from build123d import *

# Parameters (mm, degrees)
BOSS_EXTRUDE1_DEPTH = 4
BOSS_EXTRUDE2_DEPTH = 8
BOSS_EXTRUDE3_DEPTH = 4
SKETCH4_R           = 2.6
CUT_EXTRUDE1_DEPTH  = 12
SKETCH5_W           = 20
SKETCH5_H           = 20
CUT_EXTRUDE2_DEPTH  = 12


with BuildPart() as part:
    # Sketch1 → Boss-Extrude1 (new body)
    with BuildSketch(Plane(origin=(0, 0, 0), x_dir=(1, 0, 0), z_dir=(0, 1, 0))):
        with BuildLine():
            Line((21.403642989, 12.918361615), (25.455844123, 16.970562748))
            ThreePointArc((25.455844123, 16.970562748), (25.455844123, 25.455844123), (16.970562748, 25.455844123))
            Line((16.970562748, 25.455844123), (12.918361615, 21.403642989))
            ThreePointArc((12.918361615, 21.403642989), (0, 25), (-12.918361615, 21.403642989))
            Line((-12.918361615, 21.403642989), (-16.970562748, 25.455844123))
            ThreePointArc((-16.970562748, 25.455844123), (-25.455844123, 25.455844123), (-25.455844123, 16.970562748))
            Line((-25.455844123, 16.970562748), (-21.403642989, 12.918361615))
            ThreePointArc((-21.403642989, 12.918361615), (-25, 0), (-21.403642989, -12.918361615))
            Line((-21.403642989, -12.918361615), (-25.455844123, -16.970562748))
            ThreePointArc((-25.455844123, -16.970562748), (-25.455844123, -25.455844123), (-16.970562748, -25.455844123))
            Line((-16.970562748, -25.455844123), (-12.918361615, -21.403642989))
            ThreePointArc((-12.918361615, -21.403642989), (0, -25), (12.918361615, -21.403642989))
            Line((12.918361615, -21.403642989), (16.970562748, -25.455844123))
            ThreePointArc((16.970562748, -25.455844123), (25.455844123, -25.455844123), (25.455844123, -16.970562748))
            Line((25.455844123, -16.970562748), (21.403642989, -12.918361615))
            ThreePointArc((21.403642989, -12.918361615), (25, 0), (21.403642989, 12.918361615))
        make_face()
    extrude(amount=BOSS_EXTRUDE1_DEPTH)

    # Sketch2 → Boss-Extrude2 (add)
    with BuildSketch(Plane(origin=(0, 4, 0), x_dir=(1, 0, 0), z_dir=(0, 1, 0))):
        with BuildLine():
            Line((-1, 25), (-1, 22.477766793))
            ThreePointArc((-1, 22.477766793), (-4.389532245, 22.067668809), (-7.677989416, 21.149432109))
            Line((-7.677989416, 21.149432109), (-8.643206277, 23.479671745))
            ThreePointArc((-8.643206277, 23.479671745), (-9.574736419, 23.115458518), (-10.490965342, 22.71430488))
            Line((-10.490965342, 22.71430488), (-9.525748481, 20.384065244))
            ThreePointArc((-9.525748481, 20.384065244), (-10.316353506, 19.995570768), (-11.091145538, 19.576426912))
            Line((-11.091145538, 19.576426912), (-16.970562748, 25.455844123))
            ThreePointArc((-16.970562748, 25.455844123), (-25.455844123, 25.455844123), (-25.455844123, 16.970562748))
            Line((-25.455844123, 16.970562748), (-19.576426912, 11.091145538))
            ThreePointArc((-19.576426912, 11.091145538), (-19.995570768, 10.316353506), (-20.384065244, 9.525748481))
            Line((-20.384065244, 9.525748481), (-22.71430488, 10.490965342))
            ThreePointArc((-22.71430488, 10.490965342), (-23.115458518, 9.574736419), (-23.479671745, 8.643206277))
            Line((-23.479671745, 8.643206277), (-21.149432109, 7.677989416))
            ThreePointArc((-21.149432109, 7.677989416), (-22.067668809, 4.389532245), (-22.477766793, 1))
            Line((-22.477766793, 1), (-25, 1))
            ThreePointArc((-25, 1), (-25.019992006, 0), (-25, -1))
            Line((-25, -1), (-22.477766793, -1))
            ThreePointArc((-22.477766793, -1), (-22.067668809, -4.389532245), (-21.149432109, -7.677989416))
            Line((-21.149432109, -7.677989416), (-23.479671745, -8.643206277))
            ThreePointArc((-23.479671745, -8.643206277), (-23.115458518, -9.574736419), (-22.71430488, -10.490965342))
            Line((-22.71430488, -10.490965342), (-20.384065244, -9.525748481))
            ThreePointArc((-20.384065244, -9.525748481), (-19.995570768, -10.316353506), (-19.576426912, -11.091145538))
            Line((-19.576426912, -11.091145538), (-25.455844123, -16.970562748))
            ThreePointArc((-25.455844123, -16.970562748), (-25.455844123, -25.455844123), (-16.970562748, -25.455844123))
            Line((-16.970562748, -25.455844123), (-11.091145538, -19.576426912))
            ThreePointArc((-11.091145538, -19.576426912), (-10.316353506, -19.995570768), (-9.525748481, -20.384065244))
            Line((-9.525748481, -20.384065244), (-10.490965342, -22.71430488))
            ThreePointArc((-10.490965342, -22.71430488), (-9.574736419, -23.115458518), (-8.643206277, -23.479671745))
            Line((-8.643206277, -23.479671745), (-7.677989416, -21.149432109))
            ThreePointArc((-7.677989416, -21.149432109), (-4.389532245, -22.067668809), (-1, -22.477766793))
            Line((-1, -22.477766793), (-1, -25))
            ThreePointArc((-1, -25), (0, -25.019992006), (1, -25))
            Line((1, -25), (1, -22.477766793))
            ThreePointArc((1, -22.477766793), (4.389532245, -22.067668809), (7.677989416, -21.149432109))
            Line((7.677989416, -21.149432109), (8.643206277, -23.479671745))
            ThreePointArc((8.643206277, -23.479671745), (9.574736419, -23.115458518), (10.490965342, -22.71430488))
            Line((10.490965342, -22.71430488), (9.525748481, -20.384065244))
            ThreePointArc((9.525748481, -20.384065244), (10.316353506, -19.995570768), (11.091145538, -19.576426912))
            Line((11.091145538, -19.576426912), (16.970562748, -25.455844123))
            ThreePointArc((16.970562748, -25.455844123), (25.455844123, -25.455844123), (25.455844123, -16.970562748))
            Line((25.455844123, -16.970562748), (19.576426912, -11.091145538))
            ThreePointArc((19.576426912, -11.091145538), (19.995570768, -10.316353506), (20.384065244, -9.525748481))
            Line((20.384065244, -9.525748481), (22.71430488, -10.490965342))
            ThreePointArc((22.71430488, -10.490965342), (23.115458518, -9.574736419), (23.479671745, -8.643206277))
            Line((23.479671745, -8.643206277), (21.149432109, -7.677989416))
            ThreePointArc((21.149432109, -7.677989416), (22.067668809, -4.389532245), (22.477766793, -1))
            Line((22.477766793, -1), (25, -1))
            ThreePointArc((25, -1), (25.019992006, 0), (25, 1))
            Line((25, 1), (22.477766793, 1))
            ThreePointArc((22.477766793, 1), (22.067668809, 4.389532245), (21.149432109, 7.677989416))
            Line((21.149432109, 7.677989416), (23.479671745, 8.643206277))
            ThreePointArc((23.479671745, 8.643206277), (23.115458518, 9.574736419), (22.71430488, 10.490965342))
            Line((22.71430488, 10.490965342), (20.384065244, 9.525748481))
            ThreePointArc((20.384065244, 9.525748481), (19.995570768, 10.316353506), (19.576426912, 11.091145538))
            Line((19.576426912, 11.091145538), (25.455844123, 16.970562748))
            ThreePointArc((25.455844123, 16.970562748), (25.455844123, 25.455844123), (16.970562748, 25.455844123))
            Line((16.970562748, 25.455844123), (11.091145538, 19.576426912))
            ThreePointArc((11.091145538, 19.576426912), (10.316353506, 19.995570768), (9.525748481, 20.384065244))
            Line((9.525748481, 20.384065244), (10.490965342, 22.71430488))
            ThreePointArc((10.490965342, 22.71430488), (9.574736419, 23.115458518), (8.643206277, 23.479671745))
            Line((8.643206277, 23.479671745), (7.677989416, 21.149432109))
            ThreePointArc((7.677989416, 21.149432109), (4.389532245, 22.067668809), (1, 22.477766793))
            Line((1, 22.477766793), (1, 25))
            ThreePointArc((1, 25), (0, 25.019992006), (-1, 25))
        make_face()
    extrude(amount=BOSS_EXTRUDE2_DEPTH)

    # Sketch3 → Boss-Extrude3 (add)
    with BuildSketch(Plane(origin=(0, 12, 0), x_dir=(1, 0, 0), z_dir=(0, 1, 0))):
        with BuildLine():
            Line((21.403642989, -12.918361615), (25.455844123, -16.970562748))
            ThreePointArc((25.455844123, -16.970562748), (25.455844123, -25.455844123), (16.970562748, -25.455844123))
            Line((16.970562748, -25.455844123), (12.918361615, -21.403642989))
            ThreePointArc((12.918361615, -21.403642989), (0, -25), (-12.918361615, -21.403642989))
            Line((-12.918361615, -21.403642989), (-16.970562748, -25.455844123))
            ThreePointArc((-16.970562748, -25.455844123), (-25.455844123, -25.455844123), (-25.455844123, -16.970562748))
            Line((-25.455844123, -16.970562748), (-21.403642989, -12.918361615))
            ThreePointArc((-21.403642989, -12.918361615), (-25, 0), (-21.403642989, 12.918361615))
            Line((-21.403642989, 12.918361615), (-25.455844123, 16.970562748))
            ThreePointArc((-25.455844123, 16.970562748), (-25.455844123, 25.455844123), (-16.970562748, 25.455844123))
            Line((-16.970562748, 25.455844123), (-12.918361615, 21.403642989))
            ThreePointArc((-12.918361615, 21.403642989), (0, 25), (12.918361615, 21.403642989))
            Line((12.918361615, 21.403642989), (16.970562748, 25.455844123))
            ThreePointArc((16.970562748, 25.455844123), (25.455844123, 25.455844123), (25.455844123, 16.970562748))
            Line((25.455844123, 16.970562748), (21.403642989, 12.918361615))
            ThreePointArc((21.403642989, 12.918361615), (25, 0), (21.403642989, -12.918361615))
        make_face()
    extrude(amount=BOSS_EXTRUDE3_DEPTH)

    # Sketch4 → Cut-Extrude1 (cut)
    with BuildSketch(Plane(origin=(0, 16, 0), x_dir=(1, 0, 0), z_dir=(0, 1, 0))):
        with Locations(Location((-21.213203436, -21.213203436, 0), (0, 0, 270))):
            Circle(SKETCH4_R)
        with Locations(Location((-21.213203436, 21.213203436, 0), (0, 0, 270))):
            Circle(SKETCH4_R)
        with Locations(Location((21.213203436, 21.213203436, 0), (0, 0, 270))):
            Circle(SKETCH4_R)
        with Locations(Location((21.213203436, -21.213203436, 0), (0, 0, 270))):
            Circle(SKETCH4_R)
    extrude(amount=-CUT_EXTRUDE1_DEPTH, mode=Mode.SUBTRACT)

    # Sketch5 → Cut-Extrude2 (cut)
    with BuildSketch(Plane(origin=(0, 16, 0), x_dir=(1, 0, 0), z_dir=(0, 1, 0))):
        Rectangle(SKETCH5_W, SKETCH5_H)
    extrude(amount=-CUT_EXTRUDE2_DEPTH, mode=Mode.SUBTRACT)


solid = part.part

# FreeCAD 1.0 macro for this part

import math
import FreeCAD as App
import Part
import Sketcher
Q = App.Units.Quantity


def add_polygon(sketch, points):
    """Adds a closed chain of lines whose ends are joined by coincident constraints."""
    first, n = sketch.GeometryCount, len(points)
    for a, b in zip(points, points[1:] + points[:1]):
        sketch.addGeometry(Part.LineSegment(App.Vector(*a, 0), App.Vector(*b, 0)), False)
    for i in range(n):
        sketch.addConstraint(Sketcher.Constraint("Coincident", first + i, 2, first + (i + 1) % n, 1))

doc = App.newDocument("Part")
body = doc.addObject("PartDesign::Body", "Body")

# Sketch on XZ plane
sketch1 = body.newObject("Sketcher::SketchObject", "Sketch")
sketch1.AttachmentSupport = (doc.getObject("XZ_Plane"), [""])
sketch1.MapMode = "FlatFace"
sketch1.addGeometry([
    Part.LineSegment(App.Vector(21, -13, 0), App.Vector(25, -17, 0)),  # 0
    Part.ArcOfCircle(Part.Circle(App.Vector(21, -21, 0), App.Vector(0, 0, 1), 6), math.radians(-135), math.radians(45)),  # 1
    Part.LineSegment(App.Vector(17, -25, 0), App.Vector(13, -21, 0)),  # 2
    Part.ArcOfCircle(Part.Circle(App.Vector(0, 0, 0), App.Vector(0, 0, 1), 25), math.radians(-121), math.radians(-59)),  # 3
    Part.LineSegment(App.Vector(-13, -21, 0), App.Vector(-17, -25, 0)),  # 4
    Part.ArcOfCircle(Part.Circle(App.Vector(-21, -21, 0), App.Vector(0, 0, 1), 6), math.radians(135), math.radians(315)),  # 5
    Part.LineSegment(App.Vector(-25, -17, 0), App.Vector(-21, -13, 0)),  # 6
    Part.ArcOfCircle(Part.Circle(App.Vector(0, 0, 0), App.Vector(0, 0, 1), 25), math.radians(149), math.radians(211)),  # 7
    Part.LineSegment(App.Vector(-21, 13, 0), App.Vector(-25, 17, 0)),  # 8
    Part.ArcOfCircle(Part.Circle(App.Vector(-21, 21, 0), App.Vector(0, 0, 1), 6), math.radians(45), math.radians(225)),  # 9
    Part.LineSegment(App.Vector(-17, 25, 0), App.Vector(-13, 21, 0)),  # 10
    Part.ArcOfCircle(Part.Circle(App.Vector(0, 0, 0), App.Vector(0, 0, 1), 25), math.radians(59), math.radians(121)),  # 11
    Part.LineSegment(App.Vector(13, 21, 0), App.Vector(17, 25, 0)),  # 12
    Part.ArcOfCircle(Part.Circle(App.Vector(21, 21, 0), App.Vector(0, 0, 1), 6), math.radians(-45), math.radians(135)),  # 13
    Part.LineSegment(App.Vector(25, 17, 0), App.Vector(21, 13, 0)),  # 14
    Part.ArcOfCircle(Part.Circle(App.Vector(0, 0, 0), App.Vector(0, 0, 1), 25), math.radians(-31), math.radians(31)),  # 15
], False)
sketch1.addConstraint([
    Sketcher.Constraint("Tangent", 0, 2, 1, 2),
    Sketcher.Constraint("Tangent", 1, 1, 2, 1),
    Sketcher.Constraint("Coincident", 2, 2, 3, 2),
    Sketcher.Constraint("Coincident", 3, 1, 4, 1),
    Sketcher.Constraint("Tangent", 4, 2, 5, 2),
    Sketcher.Constraint("Tangent", 5, 1, 6, 1),
    Sketcher.Constraint("Coincident", 6, 2, 7, 2),
    Sketcher.Constraint("Coincident", 7, 1, 8, 1),
    Sketcher.Constraint("Tangent", 8, 2, 9, 2),
    Sketcher.Constraint("Tangent", 9, 1, 10, 1),
    Sketcher.Constraint("Coincident", 10, 2, 11, 2),
    Sketcher.Constraint("Coincident", 11, 1, 12, 1),
    Sketcher.Constraint("Tangent", 12, 2, 13, 2),
    Sketcher.Constraint("Tangent", 13, 1, 14, 1),
    Sketcher.Constraint("Coincident", 14, 2, 15, 2),
    Sketcher.Constraint("Coincident", 15, 1, 0, 1),
    Sketcher.Constraint("Coincident", 3, 3, -1, 1),
    Sketcher.Constraint("Coincident", 7, 3, -1, 1),
    Sketcher.Constraint("Coincident", 11, 3, -1, 1),
    Sketcher.Constraint("Coincident", 15, 3, -1, 1),
    Sketcher.Constraint("Equal", 1, 5),
    Sketcher.Constraint("Equal", 3, 7),
    Sketcher.Constraint("Equal", 5, 9),
    Sketcher.Constraint("Equal", 7, 11),
    Sketcher.Constraint("Equal", 9, 13),
    Sketcher.Constraint("Equal", 11, 15),
    Sketcher.Constraint("Symmetric", 1, 3, 9, 3, -1, 1),
    Sketcher.Constraint("Symmetric", 5, 3, 13, 3, -1, 1),
    Sketcher.Constraint("Symmetric", 1, 3, 5, 3, -2),
    Sketcher.Constraint("Parallel", 0, 2),
    Sketcher.Constraint("Perpendicular", 2, 4),
    Sketcher.Constraint("Parallel", 4, 6),
    Sketcher.Constraint("Perpendicular", 6, 8),
    Sketcher.Constraint("Parallel", 8, 10),
    Sketcher.Constraint("Perpendicular", 10, 12),
    Sketcher.Constraint("Parallel", 12, 14),
    Sketcher.Constraint("Horizontal", 2, 2, 3, 1),
    Sketcher.Constraint("Equal", 0, 2),
    Sketcher.Constraint("Radius", 1, 6.0),
    Sketcher.Constraint("Radius", 3, 25.0),
    Sketcher.Constraint("DistanceX", 2, 2, 1, 1, 4.052201),
])
pad1 = body.newObject("PartDesign::Pad", "Pad")
pad1.Profile = sketch1
pad1.Length = 4
pad1.Reversed = True

# Sketch on XZ plane
sketch2 = body.newObject("Sketcher::SketchObject", "Sketch001")
sketch2.AttachmentSupport = (doc.getObject("XZ_Plane"), [""])
sketch2.MapMode = "FlatFace"
sketch2.AttachmentOffset = App.Placement(App.Vector(0, 0, -4), App.Rotation())
sketch2.addGeometry([
    Part.LineSegment(App.Vector(-1, -25, 0), App.Vector(-1, -22.5, 0)),  # 0
    Part.ArcOfCircle(Part.Circle(App.Vector(0, 0, 0), App.Vector(0, 0, 1), 22.5), math.radians(-109.95), math.radians(-92.55)),  # 1
    Part.LineSegment(App.Vector(-7.7, -21.1, 0), App.Vector(-8.6, -23.5, 0)),  # 2
    Part.ArcOfCircle(Part.Circle(App.Vector(0, 0, 0), App.Vector(0, 0, 1), 25), math.radians(-114.79), math.radians(-110.21)),  # 3
    Part.LineSegment(App.Vector(-10.5, -22.7, 0), App.Vector(-9.5, -20.4, 0)),  # 4
    Part.ArcOfCircle(Part.Circle(App.Vector(0, 0, 0), App.Vector(0, 0, 1), 22.5), math.radians(-119.53), math.radians(-115.05)),  # 5
    Part.LineSegment(App.Vector(-11.1, -19.6, 0), App.Vector(-17, -25.5, 0)),  # 6
    Part.ArcOfCircle(Part.Circle(App.Vector(-21.2, -21.2, 0), App.Vector(0, 0, 1), 6), math.radians(135), math.radians(315)),  # 7
    Part.LineSegment(App.Vector(-25.5, -17, 0), App.Vector(-19.6, -11.1, 0)),  # 8
    Part.ArcOfCircle(Part.Circle(App.Vector(0, 0, 0), App.Vector(0, 0, 1), 22.5), math.radians(-154.95), math.radians(-150.47)),  # 9
    Part.LineSegment(App.Vector(-20.4, -9.5, 0), App.Vector(-22.7, -10.5, 0)),  # 10
    Part.ArcOfCircle(Part.Circle(App.Vector(0, 0, 0), App.Vector(0, 0, 1), 25), math.radians(-159.79), math.radians(-155.21)),  # 11
    Part.LineSegment(App.Vector(-23.5, -8.6, 0), App.Vector(-21.1, -7.7, 0)),  # 12
    Part.ArcOfCircle(Part.Circle(App.Vector(0, 0, 0), App.Vector(0, 0, 1), 22.5), math.radians(-177.45), math.radians(-160.05)),  # 13
    Part.LineSegment(App.Vector(-22.5, -1, 0), App.Vector(-25, -1, 0)),  # 14
    Part.ArcOfCircle(Part.Circle(App.Vector(0, 0, 0), App.Vector(0, 0, 1), 25), math.radians(177.71), math.radians(182.29)),  # 15
    Part.LineSegment(App.Vector(-25, 1, 0), App.Vector(-22.5, 1, 0)),  # 16
    Part.ArcOfCircle(Part.Circle(App.Vector(0, 0, 0), App.Vector(0, 0, 1), 22.5), math.radians(160.05), math.radians(177.45)),  # 17
    Part.LineSegment(App.Vector(-21.1, 7.7, 0), App.Vector(-23.5, 8.6, 0)),  # 18
    Part.ArcOfCircle(Part.Circle(App.Vector(0, 0, 0), App.Vector(0, 0, 1), 25), math.radians(155.21), math.radians(159.79)),  # 19
    Part.LineSegment(App.Vector(-22.7, 10.5, 0), App.Vector(-20.4, 9.5, 0)),  # 20
    Part.ArcOfCircle(Part.Circle(App.Vector(0, 0, 0), App.Vector(0, 0, 1), 22.5), math.radians(150.47), math.radians(154.95)),  # 21
    Part.LineSegment(App.Vector(-19.6, 11.1, 0), App.Vector(-25.5, 17, 0)),  # 22
    Part.ArcOfCircle(Part.Circle(App.Vector(-21.2, 21.2, 0), App.Vector(0, 0, 1), 6), math.radians(45), math.radians(225)),  # 23
    Part.LineSegment(App.Vector(-17, 25.5, 0), App.Vector(-11.1, 19.6, 0)),  # 24
    Part.ArcOfCircle(Part.Circle(App.Vector(0, 0, 0), App.Vector(0, 0, 1), 22.5), math.radians(115.05), math.radians(119.53)),  # 25
    Part.LineSegment(App.Vector(-9.5, 20.4, 0), App.Vector(-10.5, 22.7, 0)),  # 26
    Part.ArcOfCircle(Part.Circle(App.Vector(0, 0, 0), App.Vector(0, 0, 1), 25), math.radians(110.21), math.radians(114.79)),  # 27
    Part.LineSegment(App.Vector(-8.6, 23.5, 0), App.Vector(-7.7, 21.1, 0)),  # 28
    Part.ArcOfCircle(Part.Circle(App.Vector(0, 0, 0), App.Vector(0, 0, 1), 22.5), math.radians(92.55), math.radians(109.95)),  # 29
    Part.LineSegment(App.Vector(-1, 22.5, 0), App.Vector(-1, 25, 0)),  # 30
    Part.ArcOfCircle(Part.Circle(App.Vector(0, 0, 0), App.Vector(0, 0, 1), 25), math.radians(87.71), math.radians(92.29)),  # 31
    Part.LineSegment(App.Vector(1, 25, 0), App.Vector(1, 22.5, 0)),  # 32
    Part.ArcOfCircle(Part.Circle(App.Vector(0, 0, 0), App.Vector(0, 0, 1), 22.5), math.radians(70.05), math.radians(87.45)),  # 33
    Part.LineSegment(App.Vector(7.7, 21.1, 0), App.Vector(8.6, 23.5, 0)),  # 34
    Part.ArcOfCircle(Part.Circle(App.Vector(0, 0, 0), App.Vector(0, 0, 1), 25), math.radians(65.21), math.radians(69.79)),  # 35
    Part.LineSegment(App.Vector(10.5, 22.7, 0), App.Vector(9.5, 20.4, 0)),  # 36
    Part.ArcOfCircle(Part.Circle(App.Vector(0, 0, 0), App.Vector(0, 0, 1), 22.5), math.radians(60.47), math.radians(64.95)),  # 37
    Part.LineSegment(App.Vector(11.1, 19.6, 0), App.Vector(17, 25.5, 0)),  # 38
    Part.ArcOfCircle(Part.Circle(App.Vector(21.2, 21.2, 0), App.Vector(0, 0, 1), 6), math.radians(-45), math.radians(135)),  # 39
    Part.LineSegment(App.Vector(25.5, 17, 0), App.Vector(19.6, 11.1, 0)),  # 40
    Part.ArcOfCircle(Part.Circle(App.Vector(0, 0, 0), App.Vector(0, 0, 1), 22.5), math.radians(25.05), math.radians(29.53)),  # 41
    Part.LineSegment(App.Vector(20.4, 9.5, 0), App.Vector(22.7, 10.5, 0)),  # 42
    Part.ArcOfCircle(Part.Circle(App.Vector(0, 0, 0), App.Vector(0, 0, 1), 25), math.radians(20.21), math.radians(24.79)),  # 43
    Part.LineSegment(App.Vector(23.5, 8.6, 0), App.Vector(21.1, 7.7, 0)),  # 44
    Part.ArcOfCircle(Part.Circle(App.Vector(0, 0, 0), App.Vector(0, 0, 1), 22.5), math.radians(2.55), math.radians(19.95)),  # 45
    Part.LineSegment(App.Vector(22.5, 1, 0), App.Vector(25, 1, 0)),  # 46
    Part.ArcOfCircle(Part.Circle(App.Vector(0, 0, 0), App.Vector(0, 0, 1), 25), math.radians(-2.29), math.radians(2.29)),  # 47
    Part.LineSegment(App.Vector(25, -1, 0), App.Vector(22.5, -1, 0)),  # 48
    Part.ArcOfCircle(Part.Circle(App.Vector(0, 0, 0), App.Vector(0, 0, 1), 22.5), math.radians(-19.95), math.radians(-2.55)),  # 49
    Part.LineSegment(App.Vector(21.1, -7.7, 0), App.Vector(23.5, -8.6, 0)),  # 50
    Part.ArcOfCircle(Part.Circle(App.Vector(0, 0, 0), App.Vector(0, 0, 1), 25), math.radians(-24.79), math.radians(-20.21)),  # 51
    Part.LineSegment(App.Vector(22.7, -10.5, 0), App.Vector(20.4, -9.5, 0)),  # 52
    Part.ArcOfCircle(Part.Circle(App.Vector(0, 0, 0), App.Vector(0, 0, 1), 22.5), math.radians(-29.53), math.radians(-25.05)),  # 53
    Part.LineSegment(App.Vector(19.6, -11.1, 0), App.Vector(25.5, -17, 0)),  # 54
    Part.ArcOfCircle(Part.Circle(App.Vector(21.2, -21.2, 0), App.Vector(0, 0, 1), 6), math.radians(-135), math.radians(45)),  # 55
    Part.LineSegment(App.Vector(17, -25.5, 0), App.Vector(11.1, -19.6, 0)),  # 56
    Part.ArcOfCircle(Part.Circle(App.Vector(0, 0, 0), App.Vector(0, 0, 1), 22.5), math.radians(-64.95), math.radians(-60.47)),  # 57
    Part.LineSegment(App.Vector(9.5, -20.4, 0), App.Vector(10.5, -22.7, 0)),  # 58
    Part.ArcOfCircle(Part.Circle(App.Vector(0, 0, 0), App.Vector(0, 0, 1), 25), math.radians(-69.79), math.radians(-65.21)),  # 59
    Part.LineSegment(App.Vector(8.6, -23.5, 0), App.Vector(7.7, -21.1, 0)),  # 60
    Part.ArcOfCircle(Part.Circle(App.Vector(0, 0, 0), App.Vector(0, 0, 1), 22.5), math.radians(-87.45), math.radians(-70.05)),  # 61
    Part.LineSegment(App.Vector(1, -22.5, 0), App.Vector(1, -25, 0)),  # 62
    Part.ArcOfCircle(Part.Circle(App.Vector(0, 0, 0), App.Vector(0, 0, 1), 25), math.radians(-92.29), math.radians(-87.71)),  # 63
], False)
sketch2.addConstraint([
    Sketcher.Constraint("Coincident", 0, 2, 1, 2),
    Sketcher.Constraint("Coincident", 1, 1, 2, 1),
    Sketcher.Constraint("Coincident", 2, 2, 3, 2),
    Sketcher.Constraint("Coincident", 3, 1, 4, 1),
    Sketcher.Constraint("Coincident", 4, 2, 5, 2),
    Sketcher.Constraint("Coincident", 5, 1, 6, 1),
    Sketcher.Constraint("Tangent", 6, 2, 7, 2),
    Sketcher.Constraint("Tangent", 7, 1, 8, 1),
    Sketcher.Constraint("Coincident", 8, 2, 9, 2),
    Sketcher.Constraint("Coincident", 9, 1, 10, 1),
    Sketcher.Constraint("Coincident", 10, 2, 11, 2),
    Sketcher.Constraint("Coincident", 11, 1, 12, 1),
    Sketcher.Constraint("Coincident", 12, 2, 13, 2),
    Sketcher.Constraint("Coincident", 13, 1, 14, 1),
    Sketcher.Constraint("Coincident", 14, 2, 15, 2),
    Sketcher.Constraint("Coincident", 15, 1, 16, 1),
    Sketcher.Constraint("Coincident", 16, 2, 17, 2),
    Sketcher.Constraint("Coincident", 17, 1, 18, 1),
    Sketcher.Constraint("Coincident", 18, 2, 19, 2),
    Sketcher.Constraint("Coincident", 19, 1, 20, 1),
    Sketcher.Constraint("Coincident", 20, 2, 21, 2),
    Sketcher.Constraint("Coincident", 21, 1, 22, 1),
    Sketcher.Constraint("Tangent", 22, 2, 23, 2),
    Sketcher.Constraint("Tangent", 23, 1, 24, 1),
    Sketcher.Constraint("Coincident", 24, 2, 25, 2),
    Sketcher.Constraint("Coincident", 25, 1, 26, 1),
    Sketcher.Constraint("Coincident", 26, 2, 27, 2),
    Sketcher.Constraint("Coincident", 27, 1, 28, 1),
    Sketcher.Constraint("Coincident", 28, 2, 29, 2),
    Sketcher.Constraint("Coincident", 29, 1, 30, 1),
    Sketcher.Constraint("Coincident", 30, 2, 31, 2),
    Sketcher.Constraint("Coincident", 31, 1, 32, 1),
    Sketcher.Constraint("Coincident", 32, 2, 33, 2),
    Sketcher.Constraint("Coincident", 33, 1, 34, 1),
    Sketcher.Constraint("Coincident", 34, 2, 35, 2),
    Sketcher.Constraint("Coincident", 35, 1, 36, 1),
    Sketcher.Constraint("Coincident", 36, 2, 37, 2),
    Sketcher.Constraint("Coincident", 37, 1, 38, 1),
    Sketcher.Constraint("Tangent", 38, 2, 39, 2),
    Sketcher.Constraint("Tangent", 39, 1, 40, 1),
    Sketcher.Constraint("Coincident", 40, 2, 41, 2),
    Sketcher.Constraint("Coincident", 41, 1, 42, 1),
    Sketcher.Constraint("Coincident", 42, 2, 43, 2),
    Sketcher.Constraint("Coincident", 43, 1, 44, 1),
    Sketcher.Constraint("Coincident", 44, 2, 45, 2),
    Sketcher.Constraint("Coincident", 45, 1, 46, 1),
    Sketcher.Constraint("Coincident", 46, 2, 47, 2),
    Sketcher.Constraint("Coincident", 47, 1, 48, 1),
    Sketcher.Constraint("Coincident", 48, 2, 49, 2),
    Sketcher.Constraint("Coincident", 49, 1, 50, 1),
    Sketcher.Constraint("Coincident", 50, 2, 51, 2),
    Sketcher.Constraint("Coincident", 51, 1, 52, 1),
    Sketcher.Constraint("Coincident", 52, 2, 53, 2),
    Sketcher.Constraint("Coincident", 53, 1, 54, 1),
    Sketcher.Constraint("Tangent", 54, 2, 55, 2),
    Sketcher.Constraint("Tangent", 55, 1, 56, 1),
    Sketcher.Constraint("Coincident", 56, 2, 57, 2),
    Sketcher.Constraint("Coincident", 57, 1, 58, 1),
    Sketcher.Constraint("Coincident", 58, 2, 59, 2),
    Sketcher.Constraint("Coincident", 59, 1, 60, 1),
    Sketcher.Constraint("Coincident", 60, 2, 61, 2),
    Sketcher.Constraint("Coincident", 61, 1, 62, 1),
    Sketcher.Constraint("Coincident", 62, 2, 63, 2),
    Sketcher.Constraint("Coincident", 63, 1, 0, 1),
    Sketcher.Constraint("Vertical", 0),
    Sketcher.Constraint("Horizontal", 14),
    Sketcher.Constraint("Horizontal", 16),
    Sketcher.Constraint("Vertical", 30),
    Sketcher.Constraint("Vertical", 32),
    Sketcher.Constraint("Horizontal", 46),
    Sketcher.Constraint("Horizontal", 48),
    Sketcher.Constraint("Vertical", 62),
    Sketcher.Constraint("Coincident", 1, 3, -1, 1),
    Sketcher.Constraint("Coincident", 3, 3, -1, 1),
    Sketcher.Constraint("Coincident", 5, 3, -1, 1),
    Sketcher.Constraint("Coincident", 9, 3, -1, 1),
    Sketcher.Constraint("Coincident", 11, 3, -1, 1),
    Sketcher.Constraint("Coincident", 13, 3, -1, 1),
    Sketcher.Constraint("Coincident", 15, 3, -1, 1),
    Sketcher.Constraint("Coincident", 17, 3, -1, 1),
    Sketcher.Constraint("Coincident", 19, 3, -1, 1),
    Sketcher.Constraint("Coincident", 21, 3, -1, 1),
    Sketcher.Constraint("Coincident", 25, 3, -1, 1),
    Sketcher.Constraint("Coincident", 27, 3, -1, 1),
    Sketcher.Constraint("Coincident", 29, 3, -1, 1),
    Sketcher.Constraint("Coincident", 31, 3, -1, 1),
    Sketcher.Constraint("Coincident", 33, 3, -1, 1),
    Sketcher.Constraint("Coincident", 35, 3, -1, 1),
    Sketcher.Constraint("Coincident", 37, 3, -1, 1),
    Sketcher.Constraint("Coincident", 41, 3, -1, 1),
    Sketcher.Constraint("Coincident", 43, 3, -1, 1),
    Sketcher.Constraint("Coincident", 45, 3, -1, 1),
    Sketcher.Constraint("Coincident", 47, 3, -1, 1),
    Sketcher.Constraint("Coincident", 49, 3, -1, 1),
    Sketcher.Constraint("Coincident", 51, 3, -1, 1),
    Sketcher.Constraint("Coincident", 53, 3, -1, 1),
    Sketcher.Constraint("Coincident", 57, 3, -1, 1),
    Sketcher.Constraint("Coincident", 59, 3, -1, 1),
    Sketcher.Constraint("Coincident", 61, 3, -1, 1),
    Sketcher.Constraint("Coincident", 63, 3, -1, 1),
    Sketcher.Constraint("Equal", 1, 5),
    Sketcher.Constraint("Equal", 5, 9),
    Sketcher.Constraint("Equal", 3, 11),
    Sketcher.Constraint("Equal", 9, 13),
    Sketcher.Constraint("Equal", 11, 15),
    Sketcher.Constraint("Equal", 13, 17),
    Sketcher.Constraint("Equal", 15, 19),
    Sketcher.Constraint("Equal", 17, 21),
    Sketcher.Constraint("Equal", 7, 23),
    Sketcher.Constraint("Equal", 21, 25),
    Sketcher.Constraint("Equal", 19, 27),
    Sketcher.Constraint("Equal", 25, 29),
    Sketcher.Constraint("Equal", 27, 31),
    Sketcher.Constraint("Equal", 29, 33),
    Sketcher.Constraint("Equal", 31, 35),
    Sketcher.Constraint("Equal", 33, 37),
    Sketcher.Constraint("Equal", 23, 39),
    Sketcher.Constraint("Equal", 37, 41),
    Sketcher.Constraint("Equal", 35, 43),
    Sketcher.Constraint("Equal", 41, 45),
    Sketcher.Constraint("Equal", 43, 47),
    Sketcher.Constraint("Equal", 45, 49),
    Sketcher.Constraint("Equal", 47, 51),
    Sketcher.Constraint("Equal", 49, 53),
    Sketcher.Constraint("Equal", 39, 55),
    Sketcher.Constraint("Equal", 53, 57),
    Sketcher.Constraint("Equal", 51, 59),
    Sketcher.Constraint("Equal", 57, 61),
    Sketcher.Constraint("Equal", 59, 63),
    Sketcher.Constraint("Symmetric", 7, 3, 39, 3, -1, 1),
    Sketcher.Constraint("Symmetric", 23, 3, 55, 3, -1, 1),
    Sketcher.Constraint("Symmetric", 23, 3, 39, 3, -2),
    Sketcher.Constraint("Parallel", 2, 4),
    Sketcher.Constraint("Parallel", 6, 8),
    Sketcher.Constraint("Parallel", 10, 12),
    Sketcher.Constraint("Perpendicular", 4, 18),
    Sketcher.Constraint("Parallel", 18, 20),
    Sketcher.Constraint("Perpendicular", 8, 22),
    Sketcher.Constraint("Parallel", 22, 24),
    Sketcher.Constraint("Perpendicular", 12, 26),
    Sketcher.Constraint("Parallel", 26, 28),
    Sketcher.Constraint("Perpendicular", 20, 34),
    Sketcher.Constraint("Parallel", 34, 36),
    Sketcher.Constraint("Perpendicular", 24, 38),
    Sketcher.Constraint("Parallel", 38, 40),
    Sketcher.Constraint("Perpendicular", 28, 42),
    Sketcher.Constraint("Parallel", 42, 44),
    Sketcher.Constraint("Perpendicular", 36, 50),
    Sketcher.Constraint("Parallel", 50, 52),
    Sketcher.Constraint("Perpendicular", 40, 54),
    Sketcher.Constraint("Parallel", 54, 56),
    Sketcher.Constraint("Perpendicular", 44, 58),
    Sketcher.Constraint("Parallel", 58, 60),
    Sketcher.Constraint("Horizontal", 30, 2, 31, 1),
    Sketcher.Constraint("Horizontal", 28, 2, 33, 1),
    Sketcher.Constraint("Horizontal", 27, 1, 34, 2),
    Sketcher.Constraint("Horizontal", 26, 2, 35, 1),
    Sketcher.Constraint("Horizontal", 24, 2, 37, 1),
    Sketcher.Constraint("Horizontal", 20, 2, 41, 1),
    Sketcher.Constraint("Horizontal", 18, 2, 43, 1),
    Sketcher.Constraint("Horizontal", 16, 2, 45, 1),
    Sketcher.Constraint("Horizontal", 14, 2, 47, 1),
    Sketcher.Constraint("Horizontal", 12, 2, 49, 1),
    Sketcher.Constraint("Horizontal", 10, 2, 51, 1),
    Sketcher.Constraint("Horizontal", 4, 2, 57, 1),
    Sketcher.Constraint("Horizontal", 2, 2, 59, 1),
    Sketcher.Constraint("Horizontal", 0, 2, 61, 1),
    Sketcher.Constraint("Vertical", 14, 2, 15, 1),
    Sketcher.Constraint("Vertical", 12, 2, 17, 1),
    Sketcher.Constraint("Vertical", 10, 2, 19, 1),
    Sketcher.Constraint("Vertical", 4, 2, 25, 1),
    Sketcher.Constraint("Vertical", 2, 2, 27, 1),
    Sketcher.Constraint("Vertical", 0, 2, 29, 1),
    Sketcher.Constraint("Equal", 2, 4),
    Sketcher.Constraint("Equal", 6, 8),
    Sketcher.Constraint("Radius", 7, 6.0),
    Sketcher.Constraint("Radius", 1, 22.5),
    Sketcher.Constraint("DistanceX", 0, 2, -1, 1, 1.0),
    Sketcher.Constraint("DistanceY", 13, 1, -1, 1, 1.0),
    Sketcher.Constraint("DistanceX", 14, 2, -1, 1, 25.0),
    Sketcher.Constraint("Angle", 2, Q("-112.5 deg")),
    Sketcher.Constraint("Distance", 6, 8.314752),
    Sketcher.Constraint("DistanceX", 1, 1, -1, 1, 7.677989),
    Sketcher.Constraint("DistanceY", 9, 1, -1, 1, 9.525748),
    Sketcher.Constraint("DistanceX", 11, 1, -1, 1, 23.479672),
])
pad2 = body.newObject("PartDesign::Pad", "Pad001")
pad2.Profile = sketch2
pad2.Length = 8
pad2.Reversed = True

# Sketch on XZ plane
sketch3 = body.newObject("Sketcher::SketchObject", "Sketch002")
sketch3.AttachmentSupport = (doc.getObject("XZ_Plane"), [""])
sketch3.MapMode = "FlatFace"
sketch3.AttachmentOffset = App.Placement(App.Vector(0, 0, -12), App.Rotation())
sketch3.addGeometry([
    Part.LineSegment(App.Vector(25, 17, 0), App.Vector(21, 13, 0)),  # 0
    Part.ArcOfCircle(Part.Circle(App.Vector(0, 0, 0), App.Vector(0, 0, 1), 25), math.radians(-31), math.radians(31)),  # 1
    Part.LineSegment(App.Vector(21, -13, 0), App.Vector(25, -17, 0)),  # 2
    Part.ArcOfCircle(Part.Circle(App.Vector(21, -21, 0), App.Vector(0, 0, 1), 6), math.radians(-135), math.radians(45)),  # 3
    Part.LineSegment(App.Vector(17, -25, 0), App.Vector(13, -21, 0)),  # 4
    Part.ArcOfCircle(Part.Circle(App.Vector(0, 0, 0), App.Vector(0, 0, 1), 25), math.radians(-121), math.radians(-59)),  # 5
    Part.LineSegment(App.Vector(-13, -21, 0), App.Vector(-17, -25, 0)),  # 6
    Part.ArcOfCircle(Part.Circle(App.Vector(-21, -21, 0), App.Vector(0, 0, 1), 6), math.radians(135), math.radians(315)),  # 7
    Part.LineSegment(App.Vector(-25, -17, 0), App.Vector(-21, -13, 0)),  # 8
    Part.ArcOfCircle(Part.Circle(App.Vector(0, 0, 0), App.Vector(0, 0, 1), 25), math.radians(149), math.radians(211)),  # 9
    Part.LineSegment(App.Vector(-21, 13, 0), App.Vector(-25, 17, 0)),  # 10
    Part.ArcOfCircle(Part.Circle(App.Vector(-21, 21, 0), App.Vector(0, 0, 1), 6), math.radians(45), math.radians(225)),  # 11
    Part.LineSegment(App.Vector(-17, 25, 0), App.Vector(-13, 21, 0)),  # 12
    Part.ArcOfCircle(Part.Circle(App.Vector(0, 0, 0), App.Vector(0, 0, 1), 25), math.radians(59), math.radians(121)),  # 13
    Part.LineSegment(App.Vector(13, 21, 0), App.Vector(17, 25, 0)),  # 14
    Part.ArcOfCircle(Part.Circle(App.Vector(21, 21, 0), App.Vector(0, 0, 1), 6), math.radians(-45), math.radians(135)),  # 15
], False)
sketch3.addConstraint([
    Sketcher.Constraint("Coincident", 0, 2, 1, 2),
    Sketcher.Constraint("Coincident", 1, 1, 2, 1),
    Sketcher.Constraint("Tangent", 2, 2, 3, 2),
    Sketcher.Constraint("Tangent", 3, 1, 4, 1),
    Sketcher.Constraint("Coincident", 4, 2, 5, 2),
    Sketcher.Constraint("Coincident", 5, 1, 6, 1),
    Sketcher.Constraint("Tangent", 6, 2, 7, 2),
    Sketcher.Constraint("Tangent", 7, 1, 8, 1),
    Sketcher.Constraint("Coincident", 8, 2, 9, 2),
    Sketcher.Constraint("Coincident", 9, 1, 10, 1),
    Sketcher.Constraint("Tangent", 10, 2, 11, 2),
    Sketcher.Constraint("Tangent", 11, 1, 12, 1),
    Sketcher.Constraint("Coincident", 12, 2, 13, 2),
    Sketcher.Constraint("Coincident", 13, 1, 14, 1),
    Sketcher.Constraint("Tangent", 14, 2, 15, 2),
    Sketcher.Constraint("Tangent", 15, 1, 0, 1),
    Sketcher.Constraint("Coincident", 1, 3, -1, 1),
    Sketcher.Constraint("Coincident", 5, 3, -1, 1),
    Sketcher.Constraint("Coincident", 9, 3, -1, 1),
    Sketcher.Constraint("Coincident", 13, 3, -1, 1),
    Sketcher.Constraint("Equal", 1, 5),
    Sketcher.Constraint("Equal", 3, 7),
    Sketcher.Constraint("Equal", 5, 9),
    Sketcher.Constraint("Equal", 7, 11),
    Sketcher.Constraint("Equal", 9, 13),
    Sketcher.Constraint("Equal", 11, 15),
    Sketcher.Constraint("Symmetric", 3, 3, 11, 3, -1, 1),
    Sketcher.Constraint("Symmetric", 7, 3, 15, 3, -1, 1),
    Sketcher.Constraint("Symmetric", 3, 3, 7, 3, -2),
    Sketcher.Constraint("Perpendicular", 0, 2),
    Sketcher.Constraint("Parallel", 2, 4),
    Sketcher.Constraint("Perpendicular", 4, 6),
    Sketcher.Constraint("Parallel", 6, 8),
    Sketcher.Constraint("Perpendicular", 8, 10),
    Sketcher.Constraint("Parallel", 10, 12),
    Sketcher.Constraint("Perpendicular", 12, 14),
    Sketcher.Constraint("Horizontal", 4, 2, 5, 1),
    Sketcher.Constraint("Equal", 2, 4),
    Sketcher.Constraint("Radius", 1, 25.0),
    Sketcher.Constraint("Radius", 3, 6.0),
    Sketcher.Constraint("DistanceX", 1, 1, 2, 2, 4.052201),
])
pad3 = body.newObject("PartDesign::Pad", "Pad002")
pad3.Profile = sketch3
pad3.Length = 4
pad3.Reversed = True

# Sketch on XZ plane
sketch4 = body.newObject("Sketcher::SketchObject", "Sketch003")
sketch4.AttachmentSupport = (doc.getObject("XZ_Plane"), [""])
sketch4.MapMode = "FlatFace"
sketch4.AttachmentOffset = App.Placement(App.Vector(0, 0, -16), App.Rotation())
sketch4.addGeometry([
    Part.Circle(App.Vector(-21.2, 21.2, 0), App.Vector(0, 0, 1), 2.6),
    Part.Circle(App.Vector(-21.2, -21.2, 0), App.Vector(0, 0, 1), 2.6),
    Part.Circle(App.Vector(21.2, -21.2, 0), App.Vector(0, 0, 1), 2.6),
    Part.Circle(App.Vector(21.2, 21.2, 0), App.Vector(0, 0, 1), 2.6),
], False)
sketch4.addConstraint([
    Sketcher.Constraint("Equal", 0, 1),
    Sketcher.Constraint("Equal", 1, 2),
    Sketcher.Constraint("Equal", 2, 3),
    Sketcher.Constraint("Symmetric", 0, 3, 2, 3, -1, 1),
    Sketcher.Constraint("Symmetric", 1, 3, 3, 3, -1, 1),
    Sketcher.Constraint("Symmetric", 1, 3, 2, 3, -2),
    Sketcher.Constraint("Diameter", 0, 5.2),
    Sketcher.Constraint("DistanceX", 0, 3, -1, 1, 21.213203),
    Sketcher.Constraint("DistanceY", -1, 1, 0, 3, 21.213203),
])
pocket1 = body.newObject("PartDesign::Pocket", "Pocket")
pocket1.Profile = sketch4
pocket1.Length = 12
pocket1.Reversed = True

# Sketch on XZ plane
sketch5 = body.newObject("Sketcher::SketchObject", "Sketch004")
sketch5.AttachmentSupport = (doc.getObject("XZ_Plane"), [""])
sketch5.MapMode = "FlatFace"
sketch5.AttachmentOffset = App.Placement(App.Vector(0, 0, -16), App.Rotation())
add_polygon(sketch5, [(-10, -10), (-10, 10), (10, 10), (10, -10)])  # lines 0-3
sketch5.addConstraint([
    Sketcher.Constraint("Vertical", 0),
    Sketcher.Constraint("Horizontal", 1),
    Sketcher.Constraint("Vertical", 2),
    Sketcher.Constraint("Horizontal", 3),
    Sketcher.Constraint("Symmetric", 0, 2, 2, 2, -1, 1),
    Sketcher.Constraint("Equal", 3, 0),
    Sketcher.Constraint("DistanceX", 1, 1, 1, 2, 20.0),
])
pocket2 = body.newObject("PartDesign::Pocket", "Pocket001")
pocket2.Profile = sketch5
pocket2.Length = 12
pocket2.Reversed = True

doc.recompute()
